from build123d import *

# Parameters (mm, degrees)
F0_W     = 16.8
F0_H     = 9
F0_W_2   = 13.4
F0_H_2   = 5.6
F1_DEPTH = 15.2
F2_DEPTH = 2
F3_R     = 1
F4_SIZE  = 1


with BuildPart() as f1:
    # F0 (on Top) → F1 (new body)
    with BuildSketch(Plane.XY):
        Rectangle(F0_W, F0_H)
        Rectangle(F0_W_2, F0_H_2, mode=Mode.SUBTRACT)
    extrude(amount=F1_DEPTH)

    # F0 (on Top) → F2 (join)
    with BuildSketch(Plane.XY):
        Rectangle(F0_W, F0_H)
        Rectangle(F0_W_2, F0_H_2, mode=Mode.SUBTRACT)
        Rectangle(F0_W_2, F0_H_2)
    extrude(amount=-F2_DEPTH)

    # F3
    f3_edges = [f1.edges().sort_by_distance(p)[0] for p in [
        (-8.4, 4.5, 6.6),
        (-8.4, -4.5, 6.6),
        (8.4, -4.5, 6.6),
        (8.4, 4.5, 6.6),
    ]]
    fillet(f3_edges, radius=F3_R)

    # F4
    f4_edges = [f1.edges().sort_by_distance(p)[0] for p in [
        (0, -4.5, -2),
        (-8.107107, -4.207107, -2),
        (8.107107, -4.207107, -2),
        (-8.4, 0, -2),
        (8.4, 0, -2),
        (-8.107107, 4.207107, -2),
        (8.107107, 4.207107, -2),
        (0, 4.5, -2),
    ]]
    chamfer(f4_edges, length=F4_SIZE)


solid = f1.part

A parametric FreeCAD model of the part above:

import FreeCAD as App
import Part
import Sketcher

V = App.Vector


def edges_at(feature, points):
    """Names of the edges that pass closest to the given points."""
    edges = feature.Shape.Edges
    near = lambda p: min(range(len(edges)), key=lambda i: edges[i].distToShape(Part.Vertex(*p))[0])
    return sorted({f"Edge{near(p) + 1}" for p in points})


def add_polygon(sketch, points):
    """Adds a closed chain of lines whose ends are joined by coincident constraints."""
    first, n = sketch.GeometryCount, len(points)
    for a, b in zip(points, points[1:] + points[:1]):
        sketch.addGeometry(Part.LineSegment(App.Vector(*a, 0), App.Vector(*b, 0)), False)
    for i in range(n):
        sketch.addConstraint(Sketcher.Constraint("Coincident", first + i, 2, first + (i + 1) % n, 1))

doc = App.newDocument("Part")
body = doc.addObject("PartDesign::Body", "Body")

sketch1 = doc.addObject("Sketcher::SketchObject", "Sketch")
body.addObject(sketch1)
sketch1.AttachmentSupport = (doc.XY_Plane, [""])
sketch1.MapMode = "FlatFace"
add_polygon(sketch1, [(-8, 4), (-8, -4), (8, -4), (8, 4)])
add_polygon(sketch1, [(7, -3), (-7, -3), (-7, 3), (7, 3)])
sketch1.addConstraint(Sketcher.Constraint("Vertical", 0))
sketch1.addConstraint(Sketcher.Constraint("Horizontal", 1))
sketch1.addConstraint(Sketcher.Constraint("Vertical", 2))
sketch1.addConstraint(Sketcher.Constraint("Horizontal", 3))
sketch1.addConstraint(Sketcher.Constraint("Horizontal", 4))
sketch1.addConstraint(Sketcher.Constraint("Vertical", 5))
sketch1.addConstraint(Sketcher.Constraint("Horizontal", 6))
sketch1.addConstraint(Sketcher.Constraint("Vertical", 7))
sketch1.addConstraint(Sketcher.Constraint("Symmetric", 0, 2, 2, 2, -1, 1))
sketch1.addConstraint(Sketcher.Constraint("Symmetric", 4, 2, 6, 2, -1, 1))
sketch1.addConstraint(Sketcher.Constraint("DistanceY", 0, 2, 0, 1, 9.0))
sketch1.addConstraint(Sketcher.Constraint("DistanceX", 1, 1, 1, 2, 16.8))
sketch1.addConstraint(Sketcher.Constraint("DistanceX", 4, 2, 4, 1, 13.4))
sketch1.addConstraint(Sketcher.Constraint("DistanceY", 5, 1, 5, 2, 5.6))
pad1 = doc.addObject("PartDesign::Pad", "Pad")
body.addObject(pad1)
pad1.Profile = sketch1
pad1.Length = 15.2

sketch2 = doc.addObject("Sketcher::SketchObject", "Sketch001")
body.addObject(sketch2)
sketch2.AttachmentSupport = (doc.XY_Plane, [""])
sketch2.MapMode = "FlatFace"
add_polygon(sketch2, [(-8, 4), (-8, -4), (8, -4), (8, 4)])
sketch2.addConstraint(Sketcher.Constraint("Vertical", 0))
sketch2.addConstraint(Sketcher.Constraint("Horizontal", 1))
sketch2.addConstraint(Sketcher.Constraint("Vertical", 2))
sketch2.addConstraint(Sketcher.Constraint("Horizontal", 3))
sketch2.addConstraint(Sketcher.Constraint("Symmetric", 0, 2, 2, 2, -1, 1))
sketch2.addConstraint(Sketcher.Constraint("DistanceY", 0, 2, 0, 1, 9.0))
sketch2.addConstraint(Sketcher.Constraint("DistanceX", 1, 1, 1, 2, 16.8))
pad2 = doc.addObject("PartDesign::Pad", "Pad001")
body.addObject(pad2)
pad2.Profile = sketch2
pad2.Length = 2
pad2.Reversed = True
doc.recompute()

fillet = doc.addObject("PartDesign::Fillet", "Fillet")
body.addObject(fillet)
fillet.Base = (pad2, edges_at(pad2, [
    (-8.4, 4.5, 6.6),
    (-8.4, -4.5, 6.6),
    (8.4, -4.5, 6.6),
    (8.4, 4.5, 6.6),
]))
fillet.Radius = 1
doc.recompute()

chamfer = doc.addObject("PartDesign::Chamfer", "Chamfer")
body.addObject(chamfer)
chamfer.Base = (fillet, edges_at(fillet, [
    (0, -4.5, -2),
    (-8.107, -4.207, -2),
    (8.107, -4.207, -2),
    (-8.4, 0, -2),
    (8.4, 0, -2),
    (-8.107, 4.207, -2),
    (8.107, 4.207, -2),
    (0, 4.5, -2),
]))
chamfer.Size = 1

doc.recompute()
